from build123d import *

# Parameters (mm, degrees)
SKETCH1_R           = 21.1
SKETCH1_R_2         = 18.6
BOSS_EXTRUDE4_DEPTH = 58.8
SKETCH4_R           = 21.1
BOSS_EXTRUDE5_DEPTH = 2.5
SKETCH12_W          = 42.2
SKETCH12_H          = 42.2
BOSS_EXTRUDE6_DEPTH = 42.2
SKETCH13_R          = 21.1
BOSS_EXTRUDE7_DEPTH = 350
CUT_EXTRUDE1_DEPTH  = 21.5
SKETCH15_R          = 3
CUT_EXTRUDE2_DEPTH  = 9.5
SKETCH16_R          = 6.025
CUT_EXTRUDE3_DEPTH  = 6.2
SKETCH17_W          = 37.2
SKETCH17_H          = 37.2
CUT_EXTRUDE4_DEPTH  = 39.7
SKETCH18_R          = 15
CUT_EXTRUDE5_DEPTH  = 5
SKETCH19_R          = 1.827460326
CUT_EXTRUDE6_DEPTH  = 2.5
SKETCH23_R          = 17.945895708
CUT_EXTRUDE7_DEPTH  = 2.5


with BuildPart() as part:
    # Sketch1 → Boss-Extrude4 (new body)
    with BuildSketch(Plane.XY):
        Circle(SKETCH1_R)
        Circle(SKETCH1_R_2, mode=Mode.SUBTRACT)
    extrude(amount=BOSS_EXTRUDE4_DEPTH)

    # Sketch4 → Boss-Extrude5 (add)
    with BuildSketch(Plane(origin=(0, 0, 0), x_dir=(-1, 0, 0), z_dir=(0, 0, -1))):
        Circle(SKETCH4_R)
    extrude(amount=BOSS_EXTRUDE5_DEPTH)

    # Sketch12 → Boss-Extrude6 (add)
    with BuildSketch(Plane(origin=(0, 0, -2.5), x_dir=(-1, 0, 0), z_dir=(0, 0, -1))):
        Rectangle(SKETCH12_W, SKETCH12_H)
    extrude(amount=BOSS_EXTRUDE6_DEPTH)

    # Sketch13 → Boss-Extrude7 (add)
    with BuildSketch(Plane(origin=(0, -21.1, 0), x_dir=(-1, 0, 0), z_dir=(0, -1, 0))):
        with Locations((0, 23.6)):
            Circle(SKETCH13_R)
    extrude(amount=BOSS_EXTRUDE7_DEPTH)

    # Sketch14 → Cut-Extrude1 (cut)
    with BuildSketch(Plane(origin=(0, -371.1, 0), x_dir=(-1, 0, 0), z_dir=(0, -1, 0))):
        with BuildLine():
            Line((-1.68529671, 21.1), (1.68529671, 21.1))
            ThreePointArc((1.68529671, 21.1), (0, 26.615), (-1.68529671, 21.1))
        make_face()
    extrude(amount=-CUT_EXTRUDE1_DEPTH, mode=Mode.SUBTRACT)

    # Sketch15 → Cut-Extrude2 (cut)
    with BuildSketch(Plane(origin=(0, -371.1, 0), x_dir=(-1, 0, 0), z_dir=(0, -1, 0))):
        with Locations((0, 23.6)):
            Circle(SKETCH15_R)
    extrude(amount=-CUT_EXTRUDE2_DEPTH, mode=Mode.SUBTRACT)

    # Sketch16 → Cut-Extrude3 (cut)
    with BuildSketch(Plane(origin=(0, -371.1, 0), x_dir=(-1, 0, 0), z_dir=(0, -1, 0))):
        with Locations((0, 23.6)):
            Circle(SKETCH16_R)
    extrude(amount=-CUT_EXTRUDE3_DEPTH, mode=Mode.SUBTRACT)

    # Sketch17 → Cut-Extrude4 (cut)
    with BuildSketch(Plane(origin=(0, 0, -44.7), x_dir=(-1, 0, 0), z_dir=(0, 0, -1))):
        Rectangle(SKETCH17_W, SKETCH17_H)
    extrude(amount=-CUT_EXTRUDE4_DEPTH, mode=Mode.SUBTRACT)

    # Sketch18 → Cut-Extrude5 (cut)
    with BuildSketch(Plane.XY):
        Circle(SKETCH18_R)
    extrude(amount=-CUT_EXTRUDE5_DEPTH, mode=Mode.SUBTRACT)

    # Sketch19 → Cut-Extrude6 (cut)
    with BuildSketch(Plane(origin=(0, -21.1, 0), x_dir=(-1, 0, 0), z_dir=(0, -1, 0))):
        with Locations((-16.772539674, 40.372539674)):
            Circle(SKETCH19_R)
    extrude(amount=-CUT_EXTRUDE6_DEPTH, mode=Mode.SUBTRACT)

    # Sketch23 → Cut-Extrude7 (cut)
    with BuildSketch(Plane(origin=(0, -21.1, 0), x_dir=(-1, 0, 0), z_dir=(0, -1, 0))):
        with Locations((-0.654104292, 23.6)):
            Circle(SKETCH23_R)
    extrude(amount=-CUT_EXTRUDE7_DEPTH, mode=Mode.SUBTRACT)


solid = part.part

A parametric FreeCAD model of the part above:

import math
import FreeCAD as App
import Part
import Sketcher
from FreeCAD import Vector
Q = App.Units.Quantity


def add_polygon(sketch, points):
    """Adds a closed chain of lines whose ends are joined by coincident constraints."""
    first, n = sketch.GeometryCount, len(points)
    for a, b in zip(points, points[1:] + points[:1]):
        sketch.addGeometry(Part.LineSegment(App.Vector(*a, 0), App.Vector(*b, 0)), False)
    for i in range(n):
        sketch.addConstraint(Sketcher.Constraint("Coincident", first + i, 2, first + (i + 1) % n, 1))

doc = App.newDocument("Part")
body = doc.addObject("PartDesign::Body", "Body")

# Sketch on XY plane
sketch1 = body.newObject("Sketcher::SketchObject", "Sketch")
sketch1.AttachmentSupport = (doc.getObject("XY_Plane"), [""])
sketch1.MapMode = "FlatFace"
sketch1.addGeometry(Part.Circle(Vector(0, 0, 0), Vector(0, 0, 1), 21.1), False)
sketch1.addGeometry(Part.Circle(Vector(0, 0, 0), Vector(0, 0, 1), 18.6), False)
sketch1.addConstraint(Sketcher.Constraint("Coincident", 0, 3, -1, 1))
sketch1.addConstraint(Sketcher.Constraint("Coincident", 1, 3, -1, 1))
sketch1.addConstraint(Sketcher.Constraint("Diameter", 0, Q("42.2 mm")))
sketch1.addConstraint(Sketcher.Constraint("Diameter", 1, Q("37.2 mm")))
pad1 = body.newObject("PartDesign::Pad", "Pad")
pad1.Profile = sketch1
pad1.Length = 58.8

# Sketch on XY plane
sketch2 = body.newObject("Sketcher::SketchObject", "Sketch001")
sketch2.AttachmentSupport = (doc.getObject("XY_Plane"), [""])
sketch2.MapMode = "FlatFace"
sketch2.addGeometry(Part.Circle(Vector(0, 0, 0), Vector(0, 0, 1), 21.1), False)
sketch2.addConstraint(Sketcher.Constraint("Coincident", 0, 3, -1, 1))
sketch2.addConstraint(Sketcher.Constraint("Diameter", 0, Q("42.2 mm")))
pad2 = body.newObject("PartDesign::Pad", "Pad001")
pad2.Profile = sketch2
pad2.Length = 2.5
pad2.Reversed = True

# Sketch on XY plane
sketch3 = body.newObject("Sketcher::SketchObject", "Sketch002")
sketch3.AttachmentSupport = (doc.getObject("XY_Plane"), [""])
sketch3.MapMode = "FlatFace"
sketch3.AttachmentOffset = App.Placement(Vector(0, 0, -2.5), App.Rotation())
add_polygon(sketch3, [(21.1, 21.1), (21.1, -21.1), (-21.1, -21.1), (-21.1, 21.1)])  # lines 0-3
sketch3.addConstraint(Sketcher.Constraint("Vertical", 0))
sketch3.addConstraint(Sketcher.Constraint("Horizontal", 1))
sketch3.addConstraint(Sketcher.Constraint("Vertical", 2))
sketch3.addConstraint(Sketcher.Constraint("Horizontal", 3))
sketch3.addConstraint(Sketcher.Constraint("Symmetric", 0, 2, 2, 2, -1, 1))
sketch3.addConstraint(Sketcher.Constraint("Equal", 3, 0))
sketch3.addConstraint(Sketcher.Constraint("DistanceX", 1, 2, 1, 1, Q("42.2 mm")))
pad3 = body.newObject("PartDesign::Pad", "Pad002")
pad3.Profile = sketch3
pad3.Length = 42.2
pad3.Reversed = True

# Sketch on XZ plane
sketch4 = body.newObject("Sketcher::SketchObject", "Sketch003")
sketch4.AttachmentSupport = (doc.getObject("XZ_Plane"), [""])
sketch4.MapMode = "FlatFace"
sketch4.AttachmentOffset = App.Placement(Vector(0, 0, 21.1), App.Rotation())
sketch4.addGeometry(Part.Circle(Vector(0, -23.6, 0), Vector(0, 0, 1), 21.1), False)
sketch4.addConstraint(Sketcher.Constraint("PointOnObject", 0, 3, -2))
sketch4.addConstraint(Sketcher.Constraint("Diameter", 0, Q("42.2 mm")))
sketch4.addConstraint(Sketcher.Constraint("DistanceY", 0, 3, -1, 1, Q("23.6 mm")))
pad4 = body.newObject("PartDesign::Pad", "Pad003")
pad4.Profile = sketch4
pad4.Length = 350

# Sketch on XZ plane
sketch5 = body.newObject("Sketcher::SketchObject", "Sketch004")
sketch5.AttachmentSupport = (doc.getObject("XZ_Plane"), [""])
sketch5.MapMode = "FlatFace"
sketch5.AttachmentOffset = App.Placement(Vector(0, 0, 371.1), App.Rotation())
sketch5.addGeometry(Part.LineSegment(Vector(1.685297, -21.1, 0), Vector(-1.685297, -21.1, 0)), False)
sketch5.addGeometry(Part.ArcOfCircle(Part.Circle(Vector(0, -23.6, 0), Vector(0, 0, 1), 3.015), math.radians(123.984646), math.radians(416.015354)), False)
sketch5.addConstraint(Sketcher.Constraint("Coincident", 0, 1, 1, 2))
sketch5.addConstraint(Sketcher.Constraint("Coincident", 1, 1, 0, 2))
sketch5.addConstraint(Sketcher.Constraint("Horizontal", 0))
sketch5.addConstraint(Sketcher.Constraint("PointOnObject", 1, 3, -2))
sketch5.addConstraint(Sketcher.Constraint("Radius", 1, Q("3.015 mm")))
sketch5.addConstraint(Sketcher.Constraint("DistanceY", 1, 3, -1, 1, Q("23.6 mm")))
sketch5.addConstraint(Sketcher.Constraint("DistanceY", 0, 1, -1, 1, Q("21.1 mm")))
pocket1 = body.newObject("PartDesign::Pocket", "Pocket")
pocket1.Profile = sketch5
pocket1.Length = 21.5

# Sketch on XZ plane
sketch6 = body.newObject("Sketcher::SketchObject", "Sketch005")
sketch6.AttachmentSupport = (doc.getObject("XZ_Plane"), [""])
sketch6.MapMode = "FlatFace"
sketch6.AttachmentOffset = App.Placement(Vector(0, 0, 371.1), App.Rotation())
sketch6.addGeometry(Part.Circle(Vector(0, -23.6, 0), Vector(0, 0, 1), 3), False)
sketch6.addConstraint(Sketcher.Constraint("PointOnObject", 0, 3, -2))
sketch6.addConstraint(Sketcher.Constraint("Diameter", 0, Q("6 mm")))
sketch6.addConstraint(Sketcher.Constraint("DistanceY", 0, 3, -1, 1, Q("23.6 mm")))
pocket2 = body.newObject("PartDesign::Pocket", "Pocket001")
pocket2.Profile = sketch6
pocket2.Length = 9.5

# Sketch on XZ plane
sketch7 = body.newObject("Sketcher::SketchObject", "Sketch006")
sketch7.AttachmentSupport = (doc.getObject("XZ_Plane"), [""])
sketch7.MapMode = "FlatFace"
sketch7.AttachmentOffset = App.Placement(Vector(0, 0, 371.1), App.Rotation())
sketch7.addGeometry(Part.Circle(Vector(0, -23.6, 0), Vector(0, 0, 1), 6.025), False)
sketch7.addConstraint(Sketcher.Constraint("PointOnObject", 0, 3, -2))
sketch7.addConstraint(Sketcher.Constraint("Diameter", 0, Q("12.05 mm")))
sketch7.addConstraint(Sketcher.Constraint("DistanceY", 0, 3, -1, 1, Q("23.6 mm")))
pocket3 = body.newObject("PartDesign::Pocket", "Pocket002")
pocket3.Profile = sketch7
pocket3.Length = 6.2

# Sketch on XY plane
sketch8 = body.newObject("Sketcher::SketchObject", "Sketch007")
sketch8.AttachmentSupport = (doc.getObject("XY_Plane"), [""])
sketch8.MapMode = "FlatFace"
sketch8.AttachmentOffset = App.Placement(Vector(0, 0, -44.7), App.Rotation())
add_polygon(sketch8, [(18.6, 18.6), (18.6, -18.6), (-18.6, -18.6), (-18.6, 18.6)])  # lines 0-3
sketch8.addConstraint(Sketcher.Constraint("Vertical", 0))
sketch8.addConstraint(Sketcher.Constraint("Horizontal", 1))
sketch8.addConstraint(Sketcher.Constraint("Vertical", 2))
sketch8.addConstraint(Sketcher.Constraint("Horizontal", 3))
sketch8.addConstraint(Sketcher.Constraint("Symmetric", 0, 2, 2, 2, -1, 1))
sketch8.addConstraint(Sketcher.Constraint("Equal", 3, 0))
sketch8.addConstraint(Sketcher.Constraint("DistanceX", 1, 2, 1, 1, Q("37.2 mm")))
pocket4 = body.newObject("PartDesign::Pocket", "Pocket003")
pocket4.Profile = sketch8
pocket4.Length = 39.7
pocket4.Reversed = True

# Sketch on XY plane
sketch9 = body.newObject("Sketcher::SketchObject", "Sketch008")
sketch9.AttachmentSupport = (doc.getObject("XY_Plane"), [""])
sketch9.MapMode = "FlatFace"
sketch9.addGeometry(Part.Circle(Vector(0, 0, 0), Vector(0, 0, 1), 15), False)
sketch9.addConstraint(Sketcher.Constraint("Coincident", 0, 3, -1, 1))
sketch9.addConstraint(Sketcher.Constraint("Diameter", 0, Q("30 mm")))
pocket5 = body.newObject("PartDesign::Pocket", "Pocket004")
pocket5.Profile = sketch9
pocket5.Length = 5

# Sketch on XZ plane
sketch10 = body.newObject("Sketcher::SketchObject", "Sketch009")
sketch10.AttachmentSupport = (doc.getObject("XZ_Plane"), [""])
sketch10.MapMode = "FlatFace"
sketch10.AttachmentOffset = App.Placement(Vector(0, 0, 21.1), App.Rotation())
sketch10.addGeometry(Part.Circle(Vector(16.77254, -40.37254, 0), Vector(0, 0, 1), 1.82746), False)
sketch10.addConstraint(Sketcher.Constraint("Diameter", 0, Q("3.654921 mm")))
sketch10.addConstraint(Sketcher.Constraint("DistanceX", -1, 1, 0, 3, Q("16.77254 mm")))
sketch10.addConstraint(Sketcher.Constraint("DistanceY", 0, 3, -1, 1, Q("40.37254 mm")))
pocket6 = body.newObject("PartDesign::Pocket", "Pocket005")
pocket6.Profile = sketch10
pocket6.Length = 2.5

# Sketch on XZ plane
sketch11 = body.newObject("Sketcher::SketchObject", "Sketch010")
sketch11.AttachmentSupport = (doc.getObject("XZ_Plane"), [""])
sketch11.MapMode = "FlatFace"
sketch11.AttachmentOffset = App.Placement(Vector(0, 0, 21.1), App.Rotation())
sketch11.addGeometry(Part.Circle(Vector(0.654104, -23.6, 0), Vector(0, 0, 1), 17.945896), False)
sketch11.addConstraint(Sketcher.Constraint("DistanceY", 0, 3, -1, 1, Q("23.6 mm")))
sketch11.addConstraint(Sketcher.Constraint("Diameter", 0, Q("35.891791 mm")))
sketch11.addConstraint(Sketcher.Constraint("DistanceX", -1, 1, 0, 3, Q("0.654104 mm")))
pocket7 = body.newObject("PartDesign::Pocket", "Pocket006")
pocket7.Profile = sketch11
pocket7.Length = 2.5

doc.recompute()
